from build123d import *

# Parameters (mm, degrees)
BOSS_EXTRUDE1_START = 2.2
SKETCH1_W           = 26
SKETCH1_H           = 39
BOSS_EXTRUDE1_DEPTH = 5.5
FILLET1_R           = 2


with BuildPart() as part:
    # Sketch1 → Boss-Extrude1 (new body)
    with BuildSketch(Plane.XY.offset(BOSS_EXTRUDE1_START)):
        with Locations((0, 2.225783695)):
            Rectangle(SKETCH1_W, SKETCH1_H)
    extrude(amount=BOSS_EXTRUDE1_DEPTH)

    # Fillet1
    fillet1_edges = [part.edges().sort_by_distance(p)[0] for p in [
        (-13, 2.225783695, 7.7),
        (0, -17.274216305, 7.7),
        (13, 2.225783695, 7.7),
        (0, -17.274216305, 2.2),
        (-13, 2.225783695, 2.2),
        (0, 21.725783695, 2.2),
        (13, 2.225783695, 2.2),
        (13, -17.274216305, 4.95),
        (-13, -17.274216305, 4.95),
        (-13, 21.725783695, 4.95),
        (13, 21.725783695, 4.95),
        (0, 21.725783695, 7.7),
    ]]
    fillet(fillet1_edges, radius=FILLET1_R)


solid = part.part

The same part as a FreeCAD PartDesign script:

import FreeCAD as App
import Part
import Sketcher
Q = App.Units.Quantity


def add_polygon(sketch, points):
    """Adds a closed chain of lines whose ends are joined by coincident constraints."""
    first, n = sketch.GeometryCount, len(points)
    for a, b in zip(points, points[1:] + points[:1]):
        sketch.addGeometry(Part.LineSegment(App.Vector(*a, 0), App.Vector(*b, 0)), False)
    for i in range(n):
        sketch.addConstraint(Sketcher.Constraint("Coincident", first + i, 2, first + (i + 1) % n, 1))

doc = App.newDocument("Part")
params = doc.addObject("Spreadsheet::Sheet", "Params")
for row, (alias, value) in enumerate([
    ("sketch1_width", "26 mm"),
    ("sketch1_height", "39 mm"),
    ("pad1_length", "5.5 mm"),
    ("fillet_radius", "2 mm"),
], start=1):
    params.set(f"A{row}", alias)
    params.set(f"B{row}", "=" + value)
    params.setAlias(f"B{row}", alias)

body = doc.addObject("PartDesign::Body", "Body")

sketch1 = body.newObject("Sketcher::SketchObject", "Sketch")
sketch1.AttachmentSupport = (doc.getObject("XY_Plane"), [""])
sketch1.MapMode = "FlatFace"
sketch1.AttachmentOffset = App.Placement(App.Vector(0, 0, 2.2), App.Rotation())
add_polygon(sketch1, [(-13, 21.725784), (-13, -17.274216), (13, -17.274216), (13, 21.725784)])
sketch1.addConstraint(Sketcher.Constraint("Vertical", 0))
sketch1.addConstraint(Sketcher.Constraint("Horizontal", 1))
sketch1.addConstraint(Sketcher.Constraint("Vertical", 2))
sketch1.addConstraint(Sketcher.Constraint("Horizontal", 3))
sketch1.addConstraint(Sketcher.Constraint("DistanceX", 1, 1, 1, 2, Q("26 mm")))
sketch1.addConstraint(Sketcher.Constraint("DistanceY", 0, 2, 0, 1, Q("39 mm")))
sketch1.addConstraint(Sketcher.Constraint("DistanceX", 0, 2, -1, 1, Q("13 mm")))
sketch1.addConstraint(Sketcher.Constraint("DistanceY", 0, 2, -1, 1, Q("17.274216 mm")))
sketch1.setExpression("Constraints[8]", "Params.sketch1_width")
sketch1.setExpression("Constraints[9]", "Params.sketch1_height")
pad1 = body.newObject("PartDesign::Pad", "Pad")
pad1.Profile = sketch1
pad1.setExpression("Length", "Params.pad1_length")
doc.recompute()

fillet = body.newObject("PartDesign::Fillet", "Fillet")
fillet.Base = (pad1, ["Edge1"])
fillet.UseAllEdges = True
fillet.setExpression("Radius", "Params.fillet_radius")

doc.recompute()
